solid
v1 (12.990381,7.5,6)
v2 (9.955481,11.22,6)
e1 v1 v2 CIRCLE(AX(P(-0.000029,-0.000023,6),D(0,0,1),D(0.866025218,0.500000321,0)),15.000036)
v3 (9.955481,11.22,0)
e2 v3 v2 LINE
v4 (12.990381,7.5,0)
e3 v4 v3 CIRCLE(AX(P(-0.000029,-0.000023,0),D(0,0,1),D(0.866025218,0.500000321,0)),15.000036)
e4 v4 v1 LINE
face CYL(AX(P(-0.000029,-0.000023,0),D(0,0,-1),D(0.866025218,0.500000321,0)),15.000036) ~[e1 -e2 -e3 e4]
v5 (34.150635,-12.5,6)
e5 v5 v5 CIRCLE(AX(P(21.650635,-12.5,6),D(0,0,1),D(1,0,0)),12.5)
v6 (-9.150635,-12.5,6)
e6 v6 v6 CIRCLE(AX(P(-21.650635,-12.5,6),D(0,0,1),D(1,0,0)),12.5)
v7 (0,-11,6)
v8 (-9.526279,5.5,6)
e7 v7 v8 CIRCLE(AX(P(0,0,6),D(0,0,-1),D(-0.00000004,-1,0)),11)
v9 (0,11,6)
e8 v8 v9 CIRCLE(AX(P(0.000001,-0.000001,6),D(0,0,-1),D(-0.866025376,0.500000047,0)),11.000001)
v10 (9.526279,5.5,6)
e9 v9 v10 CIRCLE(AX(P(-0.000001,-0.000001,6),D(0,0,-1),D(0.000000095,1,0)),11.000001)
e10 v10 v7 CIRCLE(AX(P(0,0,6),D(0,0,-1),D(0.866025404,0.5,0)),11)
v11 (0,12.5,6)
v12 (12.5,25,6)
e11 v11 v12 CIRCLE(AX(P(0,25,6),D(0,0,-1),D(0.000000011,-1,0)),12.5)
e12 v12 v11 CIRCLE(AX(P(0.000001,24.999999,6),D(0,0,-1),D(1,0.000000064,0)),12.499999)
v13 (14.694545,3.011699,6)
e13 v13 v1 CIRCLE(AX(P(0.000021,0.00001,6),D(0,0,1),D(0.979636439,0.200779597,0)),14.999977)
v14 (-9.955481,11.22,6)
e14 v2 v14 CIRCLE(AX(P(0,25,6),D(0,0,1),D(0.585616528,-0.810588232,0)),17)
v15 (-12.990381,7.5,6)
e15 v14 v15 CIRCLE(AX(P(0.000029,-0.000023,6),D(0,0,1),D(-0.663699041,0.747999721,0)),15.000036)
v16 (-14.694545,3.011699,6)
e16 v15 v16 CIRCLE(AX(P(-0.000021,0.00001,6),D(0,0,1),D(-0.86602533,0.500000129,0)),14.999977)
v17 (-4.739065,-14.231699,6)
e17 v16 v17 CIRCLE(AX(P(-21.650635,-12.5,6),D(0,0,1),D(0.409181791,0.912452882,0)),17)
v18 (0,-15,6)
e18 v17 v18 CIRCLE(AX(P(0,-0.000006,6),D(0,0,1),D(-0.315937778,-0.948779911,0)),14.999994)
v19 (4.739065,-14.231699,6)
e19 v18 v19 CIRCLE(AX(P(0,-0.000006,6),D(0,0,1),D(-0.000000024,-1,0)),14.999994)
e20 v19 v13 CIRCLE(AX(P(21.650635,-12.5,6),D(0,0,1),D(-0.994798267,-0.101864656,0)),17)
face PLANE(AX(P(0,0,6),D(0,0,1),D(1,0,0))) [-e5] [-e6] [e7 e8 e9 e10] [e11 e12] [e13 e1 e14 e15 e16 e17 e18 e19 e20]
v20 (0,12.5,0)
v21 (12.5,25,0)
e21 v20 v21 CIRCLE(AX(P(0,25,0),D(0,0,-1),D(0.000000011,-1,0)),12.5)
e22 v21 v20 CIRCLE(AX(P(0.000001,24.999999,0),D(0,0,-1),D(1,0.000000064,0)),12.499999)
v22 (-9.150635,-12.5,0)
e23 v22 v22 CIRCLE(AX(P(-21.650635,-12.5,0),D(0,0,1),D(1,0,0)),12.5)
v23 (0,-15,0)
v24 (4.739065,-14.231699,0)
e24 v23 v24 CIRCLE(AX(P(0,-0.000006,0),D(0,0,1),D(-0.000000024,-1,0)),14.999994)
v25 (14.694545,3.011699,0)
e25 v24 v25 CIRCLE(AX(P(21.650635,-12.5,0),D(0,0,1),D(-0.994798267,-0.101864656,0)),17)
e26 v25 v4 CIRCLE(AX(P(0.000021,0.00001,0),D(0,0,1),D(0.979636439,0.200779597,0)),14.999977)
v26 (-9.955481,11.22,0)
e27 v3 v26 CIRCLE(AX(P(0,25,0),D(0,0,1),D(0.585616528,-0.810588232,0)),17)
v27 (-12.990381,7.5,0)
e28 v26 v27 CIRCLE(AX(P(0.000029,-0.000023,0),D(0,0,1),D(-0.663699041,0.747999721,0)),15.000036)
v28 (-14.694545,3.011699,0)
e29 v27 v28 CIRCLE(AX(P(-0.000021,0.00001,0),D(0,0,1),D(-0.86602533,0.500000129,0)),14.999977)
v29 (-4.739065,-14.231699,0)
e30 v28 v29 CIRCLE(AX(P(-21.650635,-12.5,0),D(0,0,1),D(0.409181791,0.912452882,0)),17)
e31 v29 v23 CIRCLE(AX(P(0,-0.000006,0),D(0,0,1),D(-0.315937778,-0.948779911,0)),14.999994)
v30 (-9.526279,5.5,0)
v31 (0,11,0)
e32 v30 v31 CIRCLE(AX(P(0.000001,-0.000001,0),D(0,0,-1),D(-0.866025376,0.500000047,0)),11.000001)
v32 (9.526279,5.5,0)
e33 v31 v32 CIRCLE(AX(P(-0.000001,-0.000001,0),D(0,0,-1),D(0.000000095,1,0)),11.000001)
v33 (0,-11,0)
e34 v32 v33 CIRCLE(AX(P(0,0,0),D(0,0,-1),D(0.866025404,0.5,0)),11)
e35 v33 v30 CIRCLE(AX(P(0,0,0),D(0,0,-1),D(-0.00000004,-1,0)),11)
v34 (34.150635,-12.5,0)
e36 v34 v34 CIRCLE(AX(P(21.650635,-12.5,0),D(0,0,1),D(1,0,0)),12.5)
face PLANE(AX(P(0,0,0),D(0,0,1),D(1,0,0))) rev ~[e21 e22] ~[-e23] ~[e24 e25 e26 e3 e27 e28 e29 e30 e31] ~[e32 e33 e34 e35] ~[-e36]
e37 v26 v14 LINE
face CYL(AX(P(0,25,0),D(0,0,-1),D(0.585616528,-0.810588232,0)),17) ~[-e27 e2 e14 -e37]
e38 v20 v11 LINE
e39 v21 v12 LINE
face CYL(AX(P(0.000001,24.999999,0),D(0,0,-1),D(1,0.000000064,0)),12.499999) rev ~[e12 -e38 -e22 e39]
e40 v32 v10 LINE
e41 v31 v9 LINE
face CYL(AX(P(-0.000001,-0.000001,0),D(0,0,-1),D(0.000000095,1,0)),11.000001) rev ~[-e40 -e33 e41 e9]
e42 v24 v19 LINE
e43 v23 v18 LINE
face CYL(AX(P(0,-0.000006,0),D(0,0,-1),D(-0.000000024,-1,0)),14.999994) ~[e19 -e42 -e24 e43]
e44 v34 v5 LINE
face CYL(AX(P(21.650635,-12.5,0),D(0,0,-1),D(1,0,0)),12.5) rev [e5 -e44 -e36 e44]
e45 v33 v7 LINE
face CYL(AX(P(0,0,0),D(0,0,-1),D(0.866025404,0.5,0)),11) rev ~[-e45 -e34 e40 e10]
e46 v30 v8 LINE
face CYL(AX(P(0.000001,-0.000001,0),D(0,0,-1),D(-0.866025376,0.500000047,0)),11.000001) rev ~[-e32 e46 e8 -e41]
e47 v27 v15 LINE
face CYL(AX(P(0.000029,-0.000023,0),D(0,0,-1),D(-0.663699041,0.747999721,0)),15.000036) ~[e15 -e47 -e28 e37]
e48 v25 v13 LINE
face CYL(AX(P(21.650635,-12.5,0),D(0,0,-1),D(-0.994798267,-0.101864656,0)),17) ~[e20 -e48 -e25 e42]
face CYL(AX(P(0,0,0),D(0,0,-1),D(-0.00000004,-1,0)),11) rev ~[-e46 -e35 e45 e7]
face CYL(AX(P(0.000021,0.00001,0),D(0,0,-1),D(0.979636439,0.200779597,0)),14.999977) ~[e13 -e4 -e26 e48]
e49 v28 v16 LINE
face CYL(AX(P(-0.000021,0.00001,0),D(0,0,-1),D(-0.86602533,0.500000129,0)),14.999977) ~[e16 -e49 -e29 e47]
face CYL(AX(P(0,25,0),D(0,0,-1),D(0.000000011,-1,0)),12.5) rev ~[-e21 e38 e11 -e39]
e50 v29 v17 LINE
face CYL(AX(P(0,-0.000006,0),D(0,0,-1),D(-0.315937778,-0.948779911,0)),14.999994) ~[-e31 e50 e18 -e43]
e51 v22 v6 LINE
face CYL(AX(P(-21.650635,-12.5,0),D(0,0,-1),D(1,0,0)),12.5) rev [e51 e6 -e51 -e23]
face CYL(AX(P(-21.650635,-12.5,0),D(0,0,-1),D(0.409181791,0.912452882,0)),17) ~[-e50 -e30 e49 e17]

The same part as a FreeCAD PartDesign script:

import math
import FreeCAD as App
import Part
import Sketcher

doc = App.newDocument("Part")
params = doc.addObject("Spreadsheet::Sheet", "Params")
for row, (alias, value) in enumerate([
    ("sketch1_diameter", "25 mm"),
    ("sketch1_radius", "17 mm"),
    ("sketch1_radius2", "11.000001 mm"),
    ("pad1_length", "6 mm"),
], start=1):
    params.set(f"A{row}", alias)
    params.set(f"B{row}", "=" + value)
    params.setAlias(f"B{row}", alias)

body = doc.addObject("PartDesign::Body", "Body")

# Sketch on XY plane
sketch1 = body.newObject("Sketcher::SketchObject", "Sketch")
sketch1.AttachmentSupport = (doc.getObject("XY_Plane"), [""])
sketch1.MapMode = "FlatFace"
sketch1.addGeometry([
    Part.ArcOfCircle(Part.Circle(App.Vector(0, 25, 0), App.Vector(0, 0, 1), 17), math.radians(-54.153443), math.radians(234.153443)),  # 0
    Part.ArcOfCircle(Part.Circle(App.Vector(0.000029, -0.000023, 0), App.Vector(0, 0, 1), 15.000036), math.radians(131.582597), math.radians(149.999979)),  # 1
    Part.ArcOfCircle(Part.Circle(App.Vector(-0.000021, 0.00001, 0), App.Vector(0, 0, 1), 14.999977), math.radians(149.999991), math.radians(168.417449)),  # 2
    Part.ArcOfCircle(Part.Circle(App.Vector(-21.650635, -12.5, 0), App.Vector(0, 0, 1), 17), math.radians(65.846553), math.radians(354.153444)),  # 3
    Part.ArcOfCircle(Part.Circle(App.Vector(0, -0.000006, 0), App.Vector(0, 0, 1), 14.999994), math.radians(-108.417436), math.radians(-89.999999)),  # 4
    Part.ArcOfCircle(Part.Circle(App.Vector(0, -0.000006, 0), App.Vector(0, 0, 1), 14.999994), math.radians(-90.000001), math.radians(-71.582564)),  # 5
    Part.ArcOfCircle(Part.Circle(App.Vector(21.650635, -12.5, 0), App.Vector(0, 0, 1), 17), math.radians(-174.153444), math.radians(114.153447)),  # 6
    Part.ArcOfCircle(Part.Circle(App.Vector(0.000021, 0.00001, 0), App.Vector(0, 0, 1), 14.999977), math.radians(11.582551), math.radians(30.000009)),  # 7
    Part.ArcOfCircle(Part.Circle(App.Vector(-0.000029, -0.000023, 0), App.Vector(0, 0, 1), 15.000036), math.radians(30.000021), math.radians(48.417403)),  # 8
    Part.Circle(App.Vector(-21.650635, -12.5, 0), App.Vector(0, 0, 1), 12.5),  # 9
    Part.Circle(App.Vector(21.650635, -12.5, 0), App.Vector(0, 0, 1), 12.5),  # 10
    Part.ArcOfCircle(Part.Circle(App.Vector(0.000001, -0.000001, 0), App.Vector(0, 0, 1), 11.000001), math.radians(90.000005), math.radians(149.999997)),  # 11
    Part.ArcOfCircle(Part.Circle(App.Vector(-0.000001, -0.000001, 0), App.Vector(0, 0, 1), 11.000001), math.radians(30.000003), math.radians(89.999995)),  # 12
    Part.ArcOfCircle(Part.Circle(App.Vector(0, 0, 0), App.Vector(0, 0, 1), 11), math.radians(-89.999998), math.radians(30)),  # 13
    Part.ArcOfCircle(Part.Circle(App.Vector(0, 0, 0), App.Vector(0, 0, 1), 11), math.radians(150), math.radians(269.999998)),  # 14
    Part.ArcOfCircle(Part.Circle(App.Vector(0, 25, 0), App.Vector(0, 0, 1), 12.5), math.radians(-0.000001), math.radians(270.000001)),  # 15
    Part.ArcOfCircle(Part.Circle(App.Vector(0.000001, 24.999999, 0), App.Vector(0, 0, 1), 12.499999), math.radians(-90.000004), math.radians(0.000004)),  # 16
], False)
sketch1.addConstraint([
    Sketcher.Constraint("Coincident", 0, 2, 1, 1),
    Sketcher.Constraint("Tangent", 1, 2, 2, 1),
    Sketcher.Constraint("Coincident", 2, 2, 3, 1),
    Sketcher.Constraint("Coincident", 3, 2, 4, 1),
    Sketcher.Constraint("Tangent", 4, 2, 5, 1),
    Sketcher.Constraint("Coincident", 5, 2, 6, 1),
    Sketcher.Constraint("Coincident", 6, 2, 7, 1),
    Sketcher.Constraint("Tangent", 7, 2, 8, 1),
    Sketcher.Constraint("Coincident", 8, 2, 0, 1),
    Sketcher.Constraint("Tangent", 11, 1, 12, 2),
    Sketcher.Constraint("Tangent", 12, 1, 13, 2),
    Sketcher.Constraint("Tangent", 13, 1, 14, 2),
    Sketcher.Constraint("Tangent", 14, 1, 11, 2),
    Sketcher.Constraint("Tangent", 15, 1, 16, 2),
    Sketcher.Constraint("Coincident", 16, 1, 15, 2),
    Sketcher.Constraint("Coincident", 4, 3, -1, 1),
    Sketcher.Constraint("Coincident", 11, 3, -1, 1),
    Sketcher.Constraint("Coincident", 9, 3, 3, 3),
    Sketcher.Constraint("Coincident", 10, 3, 6, 3),
    Sketcher.Constraint("Coincident", 15, 3, 0, 3),
    Sketcher.Constraint("Equal", 0, 3),
    Sketcher.Constraint("Equal", 4, 5),
    Sketcher.Constraint("Equal", 3, 6),
    Sketcher.Constraint("Equal", 2, 7),
    Sketcher.Constraint("Equal", 1, 8),
    Sketcher.Constraint("Equal", 9, 10),
    Sketcher.Constraint("Equal", 11, 12),
    Sketcher.Constraint("Equal", 10, 15),
    Sketcher.Constraint("Symmetric", 3, 3, 6, 3, -2),
    Sketcher.Constraint("Symmetric", 2, 3, 7, 3, -2),
    Sketcher.Constraint("PointOnObject", 0, 3, -2),
    Sketcher.Constraint("PointOnObject", 4, 2, -2),
    Sketcher.Constraint("PointOnObject", 11, 1, -2),
    Sketcher.Constraint("PointOnObject", 13, 1, -2),
    Sketcher.Constraint("PointOnObject", 16, 1, -2),
    Sketcher.Constraint("Horizontal", 1, 2, 7, 2),
    Sketcher.Constraint("Horizontal", 12, 1, 14, 1),
    Sketcher.Constraint("Horizontal", 16, 3, 15, 1),
    Sketcher.Constraint("Diameter", 9, 25.0),
    Sketcher.Constraint("Radius", 0, 17.0),
    Sketcher.Constraint("Radius", 11, 11.000001),
    Sketcher.Constraint("DistanceY", -1, 1, 0, 3, 25.0),
    Sketcher.Constraint("DistanceY", 4, 2, -1, 1, 15.0),
    Sketcher.Constraint("DistanceY", 12, 1, 7, 2, 2.0),
    Sketcher.Constraint("DistanceY", 14, 1, 16, 1, 7.0),
    Sketcher.Constraint("DistanceY", 3, 3, -1, 1, 12.5),
    Sketcher.Constraint("DistanceY", -1, 1, 0, 2, 11.22),
    Sketcher.Constraint("Radius", 1, 15.000036),
    Sketcher.Constraint("Radius", 2, 14.999977),
    Sketcher.Constraint("DistanceY", -1, 1, 2, 2, 3.011699),
    Sketcher.Constraint("DistanceY", 3, 2, -1, 1, 14.231699),
])
sketch1.setExpression("Constraints[38]", "Params.sketch1_diameter")
sketch1.setExpression("Constraints[39]", "Params.sketch1_radius")
sketch1.setExpression("Constraints[40]", "Params.sketch1_radius2")
pad1 = body.newObject("PartDesign::Pad", "Pad")
pad1.Profile = sketch1
pad1.setExpression("Length", "Params.pad1_length")

doc.recompute()
